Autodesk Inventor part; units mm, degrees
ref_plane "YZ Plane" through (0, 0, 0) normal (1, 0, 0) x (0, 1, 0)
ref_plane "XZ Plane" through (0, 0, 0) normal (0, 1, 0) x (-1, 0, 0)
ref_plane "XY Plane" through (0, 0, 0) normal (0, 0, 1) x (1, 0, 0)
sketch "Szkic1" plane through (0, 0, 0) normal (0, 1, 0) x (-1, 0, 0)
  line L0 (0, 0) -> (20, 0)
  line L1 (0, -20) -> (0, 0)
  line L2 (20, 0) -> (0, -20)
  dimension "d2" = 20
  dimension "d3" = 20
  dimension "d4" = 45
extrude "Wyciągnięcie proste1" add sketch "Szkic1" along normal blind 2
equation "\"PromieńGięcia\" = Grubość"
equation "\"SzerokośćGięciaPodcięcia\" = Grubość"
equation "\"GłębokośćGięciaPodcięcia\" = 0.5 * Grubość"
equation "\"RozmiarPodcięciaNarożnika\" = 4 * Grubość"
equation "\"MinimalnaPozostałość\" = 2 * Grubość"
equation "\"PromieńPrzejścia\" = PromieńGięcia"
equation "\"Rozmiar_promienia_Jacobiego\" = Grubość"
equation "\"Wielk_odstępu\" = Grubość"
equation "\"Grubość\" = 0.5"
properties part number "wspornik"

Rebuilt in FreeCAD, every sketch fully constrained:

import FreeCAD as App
import Part
import Sketcher
Q = App.Units.Quantity


def add_polygon(sketch, points):
    """Adds a closed chain of lines whose ends are joined by coincident constraints."""
    first, n = sketch.GeometryCount, len(points)
    for a, b in zip(points, points[1:] + points[:1]):
        sketch.addGeometry(Part.LineSegment(App.Vector(*a, 0), App.Vector(*b, 0)), False)
    for i in range(n):
        sketch.addConstraint(Sketcher.Constraint("Coincident", first + i, 2, first + (i + 1) % n, 1))

doc = App.newDocument("Part")
body = doc.addObject("PartDesign::Body", "Body")

sketch1 = doc.addObject("Sketcher::SketchObject", "Sketch")
body.addObject(sketch1)
sketch1.AttachmentSupport = (doc.XZ_Plane, [""])
sketch1.MapMode = "FlatFace"
add_polygon(sketch1, [(-20, 0), (0, 0), (0, -20)])
sketch1.addConstraint([
    Sketcher.Constraint("Horizontal", 0),
    Sketcher.Constraint("Vertical", 1),
    Sketcher.Constraint("Coincident", 0, 2, -1, 1),
    Sketcher.Constraint("Equal", 0, 1),
    Sketcher.Constraint("DistanceX", 0, 1, 0, 2, Q("20 mm")),
])
pad1 = doc.addObject("PartDesign::Pad", "Pad")
body.addObject(pad1)
pad1.Profile = sketch1
pad1.Length = 2
pad1.Reversed = True

doc.recompute()
